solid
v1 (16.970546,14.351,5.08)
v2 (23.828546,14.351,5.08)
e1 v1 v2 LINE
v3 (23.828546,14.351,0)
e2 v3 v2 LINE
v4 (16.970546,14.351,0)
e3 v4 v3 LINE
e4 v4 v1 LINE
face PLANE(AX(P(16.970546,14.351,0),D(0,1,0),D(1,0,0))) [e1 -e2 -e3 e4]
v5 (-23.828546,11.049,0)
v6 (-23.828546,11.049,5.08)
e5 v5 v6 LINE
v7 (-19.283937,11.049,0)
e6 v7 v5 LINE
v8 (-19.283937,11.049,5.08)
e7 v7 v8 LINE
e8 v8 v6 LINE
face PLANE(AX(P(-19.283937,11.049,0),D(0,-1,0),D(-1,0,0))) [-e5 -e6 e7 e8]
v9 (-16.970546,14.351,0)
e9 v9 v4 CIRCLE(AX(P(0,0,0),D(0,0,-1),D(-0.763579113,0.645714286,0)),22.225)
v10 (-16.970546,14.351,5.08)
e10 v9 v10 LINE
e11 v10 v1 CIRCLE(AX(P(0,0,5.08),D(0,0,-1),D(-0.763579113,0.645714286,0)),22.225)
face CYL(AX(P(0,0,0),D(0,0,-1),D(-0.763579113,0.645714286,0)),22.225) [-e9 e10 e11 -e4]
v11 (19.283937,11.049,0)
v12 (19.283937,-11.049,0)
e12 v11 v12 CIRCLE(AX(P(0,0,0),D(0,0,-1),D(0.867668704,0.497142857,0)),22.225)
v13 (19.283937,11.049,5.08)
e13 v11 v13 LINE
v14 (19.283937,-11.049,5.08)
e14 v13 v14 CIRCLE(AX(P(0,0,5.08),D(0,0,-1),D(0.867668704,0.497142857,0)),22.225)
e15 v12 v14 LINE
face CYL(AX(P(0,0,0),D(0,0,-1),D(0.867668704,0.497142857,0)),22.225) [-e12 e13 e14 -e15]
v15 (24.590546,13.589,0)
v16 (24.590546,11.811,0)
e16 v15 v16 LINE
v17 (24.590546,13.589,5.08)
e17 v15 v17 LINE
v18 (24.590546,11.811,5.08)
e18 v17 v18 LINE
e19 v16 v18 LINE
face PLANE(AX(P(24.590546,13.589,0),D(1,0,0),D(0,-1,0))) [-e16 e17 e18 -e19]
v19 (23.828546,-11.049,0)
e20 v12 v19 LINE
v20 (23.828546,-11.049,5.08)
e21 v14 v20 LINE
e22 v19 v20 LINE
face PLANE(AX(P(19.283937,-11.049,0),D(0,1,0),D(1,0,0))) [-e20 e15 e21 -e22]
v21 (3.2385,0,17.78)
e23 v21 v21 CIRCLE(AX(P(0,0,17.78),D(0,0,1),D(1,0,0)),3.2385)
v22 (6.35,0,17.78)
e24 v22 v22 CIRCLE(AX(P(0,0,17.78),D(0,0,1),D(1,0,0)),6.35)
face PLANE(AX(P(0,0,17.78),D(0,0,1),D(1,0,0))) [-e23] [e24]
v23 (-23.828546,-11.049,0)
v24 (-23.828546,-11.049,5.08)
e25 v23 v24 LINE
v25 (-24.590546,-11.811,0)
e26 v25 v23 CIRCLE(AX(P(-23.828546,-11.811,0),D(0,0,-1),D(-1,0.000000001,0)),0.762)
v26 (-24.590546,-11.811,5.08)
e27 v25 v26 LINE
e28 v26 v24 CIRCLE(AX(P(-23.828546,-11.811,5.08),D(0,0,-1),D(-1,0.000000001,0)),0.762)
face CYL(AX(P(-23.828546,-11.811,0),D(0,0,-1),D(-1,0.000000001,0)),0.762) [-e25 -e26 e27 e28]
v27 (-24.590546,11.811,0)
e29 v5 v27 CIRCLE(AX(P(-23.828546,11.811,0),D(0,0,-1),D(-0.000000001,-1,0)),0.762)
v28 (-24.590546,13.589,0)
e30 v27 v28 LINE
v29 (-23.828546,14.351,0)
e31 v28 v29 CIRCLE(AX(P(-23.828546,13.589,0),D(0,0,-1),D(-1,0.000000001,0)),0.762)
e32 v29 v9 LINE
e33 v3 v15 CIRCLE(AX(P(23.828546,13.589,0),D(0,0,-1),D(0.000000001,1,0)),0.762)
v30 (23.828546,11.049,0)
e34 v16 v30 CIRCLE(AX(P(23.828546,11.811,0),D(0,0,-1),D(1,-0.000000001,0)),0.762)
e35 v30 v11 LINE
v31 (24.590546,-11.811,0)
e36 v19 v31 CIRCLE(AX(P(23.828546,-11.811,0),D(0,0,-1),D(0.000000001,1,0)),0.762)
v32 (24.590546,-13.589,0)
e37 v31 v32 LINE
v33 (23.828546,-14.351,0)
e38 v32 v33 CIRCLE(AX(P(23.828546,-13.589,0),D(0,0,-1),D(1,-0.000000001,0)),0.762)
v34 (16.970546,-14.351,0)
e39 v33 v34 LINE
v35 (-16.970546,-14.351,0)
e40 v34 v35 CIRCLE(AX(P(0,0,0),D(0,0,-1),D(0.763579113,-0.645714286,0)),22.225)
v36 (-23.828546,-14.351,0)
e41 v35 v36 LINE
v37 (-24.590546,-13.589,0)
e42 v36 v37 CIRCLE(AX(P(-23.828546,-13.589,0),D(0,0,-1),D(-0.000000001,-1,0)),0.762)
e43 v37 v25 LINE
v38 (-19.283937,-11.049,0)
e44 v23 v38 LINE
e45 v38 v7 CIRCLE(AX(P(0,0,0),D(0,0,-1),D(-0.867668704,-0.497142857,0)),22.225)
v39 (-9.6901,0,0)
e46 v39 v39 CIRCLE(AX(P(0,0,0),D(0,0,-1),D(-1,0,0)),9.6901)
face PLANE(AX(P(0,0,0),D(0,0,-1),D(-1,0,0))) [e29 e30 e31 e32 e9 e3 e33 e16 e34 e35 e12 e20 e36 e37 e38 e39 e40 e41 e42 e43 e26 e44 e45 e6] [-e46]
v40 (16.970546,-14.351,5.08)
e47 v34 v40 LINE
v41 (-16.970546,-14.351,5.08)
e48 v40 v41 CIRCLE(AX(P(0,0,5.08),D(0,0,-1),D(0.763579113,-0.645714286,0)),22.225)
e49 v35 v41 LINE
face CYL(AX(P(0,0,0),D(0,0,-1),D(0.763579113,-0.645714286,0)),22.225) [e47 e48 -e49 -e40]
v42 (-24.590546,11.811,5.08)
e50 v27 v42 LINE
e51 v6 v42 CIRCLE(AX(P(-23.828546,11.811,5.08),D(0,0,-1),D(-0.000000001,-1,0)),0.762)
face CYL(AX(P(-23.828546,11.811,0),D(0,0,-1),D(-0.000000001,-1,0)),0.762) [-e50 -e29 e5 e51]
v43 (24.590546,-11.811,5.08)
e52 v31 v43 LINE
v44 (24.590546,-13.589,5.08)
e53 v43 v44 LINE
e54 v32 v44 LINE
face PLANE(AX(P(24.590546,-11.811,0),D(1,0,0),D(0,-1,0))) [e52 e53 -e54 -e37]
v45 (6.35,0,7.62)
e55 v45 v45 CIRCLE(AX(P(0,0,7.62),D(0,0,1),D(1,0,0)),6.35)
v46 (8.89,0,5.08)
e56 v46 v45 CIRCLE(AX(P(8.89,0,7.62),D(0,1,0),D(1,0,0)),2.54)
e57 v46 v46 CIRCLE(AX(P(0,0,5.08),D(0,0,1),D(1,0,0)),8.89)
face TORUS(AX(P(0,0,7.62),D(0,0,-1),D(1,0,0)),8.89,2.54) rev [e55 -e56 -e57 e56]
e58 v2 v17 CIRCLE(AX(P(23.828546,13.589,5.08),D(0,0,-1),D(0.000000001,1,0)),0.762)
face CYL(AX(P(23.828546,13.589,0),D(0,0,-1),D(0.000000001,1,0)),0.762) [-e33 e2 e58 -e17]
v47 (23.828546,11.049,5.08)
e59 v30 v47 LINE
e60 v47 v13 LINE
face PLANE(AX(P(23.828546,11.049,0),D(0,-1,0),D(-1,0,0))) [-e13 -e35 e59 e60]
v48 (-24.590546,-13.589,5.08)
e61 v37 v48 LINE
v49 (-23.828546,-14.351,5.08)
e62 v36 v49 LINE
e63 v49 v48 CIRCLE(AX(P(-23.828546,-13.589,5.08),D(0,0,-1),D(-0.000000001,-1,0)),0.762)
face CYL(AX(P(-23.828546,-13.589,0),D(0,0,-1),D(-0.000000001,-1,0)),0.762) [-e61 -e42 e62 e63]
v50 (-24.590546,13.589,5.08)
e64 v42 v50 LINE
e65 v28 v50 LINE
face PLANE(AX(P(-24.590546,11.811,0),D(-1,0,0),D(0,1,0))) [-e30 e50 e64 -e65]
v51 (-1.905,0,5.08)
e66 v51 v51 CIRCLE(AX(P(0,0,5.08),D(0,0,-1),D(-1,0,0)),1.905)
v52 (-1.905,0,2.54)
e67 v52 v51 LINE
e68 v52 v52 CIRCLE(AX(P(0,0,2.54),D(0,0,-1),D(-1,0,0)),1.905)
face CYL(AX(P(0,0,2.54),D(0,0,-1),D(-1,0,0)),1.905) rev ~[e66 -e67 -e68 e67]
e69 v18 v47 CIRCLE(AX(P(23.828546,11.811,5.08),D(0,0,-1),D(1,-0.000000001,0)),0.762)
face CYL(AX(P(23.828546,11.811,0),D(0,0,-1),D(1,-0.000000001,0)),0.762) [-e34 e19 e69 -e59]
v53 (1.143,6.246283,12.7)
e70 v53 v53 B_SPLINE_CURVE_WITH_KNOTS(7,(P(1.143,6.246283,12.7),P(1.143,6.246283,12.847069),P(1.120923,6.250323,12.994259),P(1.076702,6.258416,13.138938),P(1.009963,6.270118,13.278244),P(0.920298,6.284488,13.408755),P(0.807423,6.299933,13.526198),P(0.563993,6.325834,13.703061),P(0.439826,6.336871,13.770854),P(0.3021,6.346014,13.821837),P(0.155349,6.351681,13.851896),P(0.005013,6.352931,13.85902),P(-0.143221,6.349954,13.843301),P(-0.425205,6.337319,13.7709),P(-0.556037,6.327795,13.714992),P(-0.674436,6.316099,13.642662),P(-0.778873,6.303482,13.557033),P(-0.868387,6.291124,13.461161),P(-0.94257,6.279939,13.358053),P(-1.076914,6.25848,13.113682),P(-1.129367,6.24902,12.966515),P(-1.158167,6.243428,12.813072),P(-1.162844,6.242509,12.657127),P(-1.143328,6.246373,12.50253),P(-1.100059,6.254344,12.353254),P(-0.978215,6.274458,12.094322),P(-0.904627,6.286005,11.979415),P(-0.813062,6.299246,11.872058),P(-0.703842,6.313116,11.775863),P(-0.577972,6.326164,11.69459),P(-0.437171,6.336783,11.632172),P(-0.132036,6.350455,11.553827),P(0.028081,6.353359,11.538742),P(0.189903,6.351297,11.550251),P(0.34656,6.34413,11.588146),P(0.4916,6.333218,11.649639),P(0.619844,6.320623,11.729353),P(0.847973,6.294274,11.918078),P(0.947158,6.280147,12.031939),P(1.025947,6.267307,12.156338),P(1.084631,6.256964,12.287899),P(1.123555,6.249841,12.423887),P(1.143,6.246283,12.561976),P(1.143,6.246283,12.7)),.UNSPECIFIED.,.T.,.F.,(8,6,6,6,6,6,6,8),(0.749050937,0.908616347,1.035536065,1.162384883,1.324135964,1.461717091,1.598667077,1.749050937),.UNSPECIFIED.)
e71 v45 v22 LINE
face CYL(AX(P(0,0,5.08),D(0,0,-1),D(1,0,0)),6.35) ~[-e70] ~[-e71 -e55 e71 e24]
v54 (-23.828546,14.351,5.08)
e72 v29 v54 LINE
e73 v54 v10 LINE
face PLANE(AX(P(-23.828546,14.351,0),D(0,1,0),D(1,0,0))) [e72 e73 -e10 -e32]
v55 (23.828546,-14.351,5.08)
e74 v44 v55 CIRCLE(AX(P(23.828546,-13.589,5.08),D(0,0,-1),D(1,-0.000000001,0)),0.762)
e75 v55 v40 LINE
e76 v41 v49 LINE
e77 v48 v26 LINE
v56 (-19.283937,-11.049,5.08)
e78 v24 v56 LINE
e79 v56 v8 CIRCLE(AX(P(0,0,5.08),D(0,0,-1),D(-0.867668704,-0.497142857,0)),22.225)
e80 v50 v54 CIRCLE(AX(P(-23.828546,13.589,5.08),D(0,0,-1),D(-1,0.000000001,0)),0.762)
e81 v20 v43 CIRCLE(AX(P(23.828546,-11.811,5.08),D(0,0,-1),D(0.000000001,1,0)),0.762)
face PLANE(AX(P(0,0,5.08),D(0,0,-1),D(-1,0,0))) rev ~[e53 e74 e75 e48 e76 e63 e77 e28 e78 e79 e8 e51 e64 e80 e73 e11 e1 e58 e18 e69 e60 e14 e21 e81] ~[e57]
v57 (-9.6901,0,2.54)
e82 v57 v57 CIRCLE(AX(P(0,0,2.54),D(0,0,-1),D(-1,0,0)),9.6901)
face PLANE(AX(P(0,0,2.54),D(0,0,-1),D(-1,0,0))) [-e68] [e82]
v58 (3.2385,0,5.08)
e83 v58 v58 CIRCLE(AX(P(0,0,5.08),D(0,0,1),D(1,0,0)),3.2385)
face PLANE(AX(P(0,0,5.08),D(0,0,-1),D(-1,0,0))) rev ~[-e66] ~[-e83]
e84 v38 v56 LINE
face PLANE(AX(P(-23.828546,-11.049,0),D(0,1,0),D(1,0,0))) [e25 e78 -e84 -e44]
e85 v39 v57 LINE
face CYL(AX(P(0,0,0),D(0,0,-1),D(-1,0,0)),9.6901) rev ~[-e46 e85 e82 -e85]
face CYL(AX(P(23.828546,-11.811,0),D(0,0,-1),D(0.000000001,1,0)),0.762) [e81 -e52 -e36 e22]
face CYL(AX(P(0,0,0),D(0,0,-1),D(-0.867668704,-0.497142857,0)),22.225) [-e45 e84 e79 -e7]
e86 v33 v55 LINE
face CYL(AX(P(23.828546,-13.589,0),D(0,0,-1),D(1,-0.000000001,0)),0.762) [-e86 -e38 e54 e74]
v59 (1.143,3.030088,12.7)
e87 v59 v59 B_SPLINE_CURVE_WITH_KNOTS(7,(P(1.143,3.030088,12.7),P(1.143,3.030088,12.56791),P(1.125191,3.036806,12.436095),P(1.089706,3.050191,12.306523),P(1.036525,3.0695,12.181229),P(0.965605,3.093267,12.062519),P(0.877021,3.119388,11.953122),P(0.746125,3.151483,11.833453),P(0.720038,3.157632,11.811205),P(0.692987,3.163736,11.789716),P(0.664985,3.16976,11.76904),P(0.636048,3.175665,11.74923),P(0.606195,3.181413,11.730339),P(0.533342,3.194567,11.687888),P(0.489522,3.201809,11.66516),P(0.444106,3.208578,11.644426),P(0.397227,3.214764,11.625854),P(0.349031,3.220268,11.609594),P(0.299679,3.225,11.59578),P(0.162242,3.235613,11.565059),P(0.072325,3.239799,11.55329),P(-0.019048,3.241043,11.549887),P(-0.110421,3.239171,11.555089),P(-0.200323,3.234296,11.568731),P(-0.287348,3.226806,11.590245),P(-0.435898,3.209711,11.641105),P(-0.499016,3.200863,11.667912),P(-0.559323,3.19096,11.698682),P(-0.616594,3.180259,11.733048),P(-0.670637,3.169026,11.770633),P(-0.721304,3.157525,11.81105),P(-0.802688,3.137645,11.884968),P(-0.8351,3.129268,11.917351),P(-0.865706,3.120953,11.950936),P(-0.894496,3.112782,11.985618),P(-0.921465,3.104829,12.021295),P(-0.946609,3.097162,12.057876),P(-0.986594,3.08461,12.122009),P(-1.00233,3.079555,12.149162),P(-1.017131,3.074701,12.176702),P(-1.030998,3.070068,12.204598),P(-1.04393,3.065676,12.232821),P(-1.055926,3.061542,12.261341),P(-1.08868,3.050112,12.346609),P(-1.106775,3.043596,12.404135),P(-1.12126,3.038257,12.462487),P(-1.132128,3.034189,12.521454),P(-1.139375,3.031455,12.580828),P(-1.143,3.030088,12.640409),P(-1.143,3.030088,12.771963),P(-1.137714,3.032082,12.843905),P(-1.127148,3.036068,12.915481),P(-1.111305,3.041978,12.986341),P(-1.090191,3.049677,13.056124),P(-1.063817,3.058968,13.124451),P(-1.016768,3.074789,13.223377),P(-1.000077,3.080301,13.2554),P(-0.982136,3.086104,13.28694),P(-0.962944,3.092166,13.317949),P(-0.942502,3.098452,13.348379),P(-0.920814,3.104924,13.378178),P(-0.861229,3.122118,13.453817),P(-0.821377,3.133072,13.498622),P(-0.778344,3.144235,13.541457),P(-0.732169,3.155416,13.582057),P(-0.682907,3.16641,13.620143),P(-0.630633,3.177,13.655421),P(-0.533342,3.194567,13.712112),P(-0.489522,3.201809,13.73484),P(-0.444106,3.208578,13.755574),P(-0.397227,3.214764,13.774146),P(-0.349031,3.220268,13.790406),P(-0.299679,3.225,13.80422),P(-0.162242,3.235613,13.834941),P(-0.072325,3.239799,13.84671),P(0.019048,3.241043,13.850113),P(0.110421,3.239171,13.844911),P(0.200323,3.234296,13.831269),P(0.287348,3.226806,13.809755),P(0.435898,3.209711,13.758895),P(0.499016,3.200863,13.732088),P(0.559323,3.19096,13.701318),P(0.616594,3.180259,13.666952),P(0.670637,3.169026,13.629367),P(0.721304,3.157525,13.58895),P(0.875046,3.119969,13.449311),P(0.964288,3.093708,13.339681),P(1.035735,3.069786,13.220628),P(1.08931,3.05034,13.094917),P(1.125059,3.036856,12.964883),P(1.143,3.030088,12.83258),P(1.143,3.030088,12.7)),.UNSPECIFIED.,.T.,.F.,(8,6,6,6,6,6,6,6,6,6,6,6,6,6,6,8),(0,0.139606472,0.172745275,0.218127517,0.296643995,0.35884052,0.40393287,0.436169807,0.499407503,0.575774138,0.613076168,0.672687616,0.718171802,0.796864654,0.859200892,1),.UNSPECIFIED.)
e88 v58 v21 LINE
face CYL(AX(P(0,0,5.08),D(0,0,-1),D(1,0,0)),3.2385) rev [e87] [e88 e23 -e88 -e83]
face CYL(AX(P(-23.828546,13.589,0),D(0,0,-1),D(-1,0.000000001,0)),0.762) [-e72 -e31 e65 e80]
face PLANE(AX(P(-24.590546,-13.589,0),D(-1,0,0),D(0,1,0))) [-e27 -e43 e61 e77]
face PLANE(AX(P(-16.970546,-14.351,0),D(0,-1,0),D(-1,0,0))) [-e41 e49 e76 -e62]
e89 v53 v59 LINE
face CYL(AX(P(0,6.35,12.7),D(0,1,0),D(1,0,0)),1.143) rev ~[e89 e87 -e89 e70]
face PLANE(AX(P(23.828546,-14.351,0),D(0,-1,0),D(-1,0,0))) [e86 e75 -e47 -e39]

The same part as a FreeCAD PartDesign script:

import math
import FreeCAD as App
import Part
import Sketcher
from FreeCAD import Vector
Q = App.Units.Quantity


def edges_at(feature, points):
    """Names of the edges that pass closest to the given points."""
    edges = feature.Shape.Edges
    near = lambda p: min(range(len(edges)), key=lambda i: edges[i].distToShape(Part.Vertex(*p))[0])
    return sorted({f"Edge{near(p) + 1}" for p in points})

doc = App.newDocument("Part")
params = doc.addObject("Spreadsheet::Sheet", "Params")
for row, (alias, value) in enumerate([
    ("sketch1_radius", "0.03 in"),
    ("sketch1_radius2", "0.875 in"),
    ("sketch1_width", "0.27 in"),
    ("sketch1_height", "0.07 in"),
    ("pad1_length", "0.2 in"),
    ("sketch2_diameter", "0.763 in"),
    ("pocket1_length", "0.1 in"),
    ("sketch3_diameter", "0.5 in"),
    ("sketch3_diameter2", "0.255 in"),
    ("pad2_length", "0.5 in"),
    ("fillet_radius", "0.1 in"),
    ("sketch4_diameter", "0.09 in"),
    ("pocket2_length", "0.3 in"),
    ("sketch5_diameter", "0.15 in"),
], start=1):
    params.set(f"A{row}", alias)
    params.set(f"B{row}", "=" + value)
    params.setAlias(f"B{row}", alias)

body = doc.addObject("PartDesign::Body", "Body")

sketch1 = body.newObject("Sketcher::SketchObject", "Sketch")
sketch1.AttachmentSupport = (doc.getObject("XY_Plane"), [""])
sketch1.MapMode = "FlatFace"
sketch1.addGeometry([
    Part.LineSegment(Vector(-17, 14.4, 0), Vector(-23.8, 14.4, 0)),
    Part.ArcOfCircle(Part.Circle(Vector(-23.8, 13.6, 0), Vector(0, 0, 1), 0.8), math.radians(90), math.radians(180)),
    Part.LineSegment(Vector(-24.6, 13.6, 0), Vector(-24.6, 11.8, 0)),
    Part.ArcOfCircle(Part.Circle(Vector(-23.8, 11.8, 0), Vector(0, 0, 1), 0.8), math.radians(-180), math.radians(-90)),
    Part.LineSegment(Vector(-23.8, 11, 0), Vector(-19.3, 11, 0)),
    Part.ArcOfCircle(Part.Circle(Vector(0, 0, 0), Vector(0, 0, 1), 22.2), math.radians(150), math.radians(210)),
    Part.LineSegment(Vector(-19.3, -11, 0), Vector(-23.8, -11, 0)),
    Part.ArcOfCircle(Part.Circle(Vector(-23.8, -11.8, 0), Vector(0, 0, 1), 0.8), math.radians(90), math.radians(180)),
    Part.LineSegment(Vector(-24.6, -11.8, 0), Vector(-24.6, -13.6, 0)),
    Part.ArcOfCircle(Part.Circle(Vector(-23.8, -13.6, 0), Vector(0, 0, 1), 0.8), math.radians(-180), math.radians(-90)),
    Part.LineSegment(Vector(-23.8, -14.4, 0), Vector(-17, -14.4, 0)),
    Part.ArcOfCircle(Part.Circle(Vector(0, 0, 0), Vector(0, 0, 1), 22.2), math.radians(-140), math.radians(-40)),
    Part.LineSegment(Vector(17, -14.4, 0), Vector(23.8, -14.4, 0)),
    Part.ArcOfCircle(Part.Circle(Vector(23.8, -13.6, 0), Vector(0, 0, 1), 0.8), math.radians(-90), math.radians(0)),
    Part.LineSegment(Vector(24.6, -13.6, 0), Vector(24.6, -11.8, 0)),
    Part.ArcOfCircle(Part.Circle(Vector(23.8, -11.8, 0), Vector(0, 0, 1), 0.8), math.radians(0), math.radians(90)),
    Part.LineSegment(Vector(23.8, -11, 0), Vector(19.3, -11, 0)),
    Part.ArcOfCircle(Part.Circle(Vector(0, 0, 0), Vector(0, 0, 1), 22.2), math.radians(-30), math.radians(30)),
    Part.LineSegment(Vector(19.3, 11, 0), Vector(23.8, 11, 0)),
    Part.ArcOfCircle(Part.Circle(Vector(23.8, 11.8, 0), Vector(0, 0, 1), 0.8), math.radians(-90), math.radians(0)),
    Part.LineSegment(Vector(24.6, 11.8, 0), Vector(24.6, 13.6, 0)),
    Part.ArcOfCircle(Part.Circle(Vector(23.8, 13.6, 0), Vector(0, 0, 1), 0.8), math.radians(0), math.radians(90)),
    Part.LineSegment(Vector(23.8, 14.4, 0), Vector(17, 14.4, 0)),
    Part.ArcOfCircle(Part.Circle(Vector(0, 0, 0), Vector(0, 0, 1), 22.2), math.radians(40), math.radians(140)),
], False)
sketch1.addConstraint([
    Sketcher.Constraint("Tangent", 0, 2, 1, 1),
    Sketcher.Constraint("Tangent", 1, 2, 2, 1),
    Sketcher.Constraint("Tangent", 2, 2, 3, 1),
    Sketcher.Constraint("Tangent", 3, 2, 4, 1),
    Sketcher.Constraint("Coincident", 4, 2, 5, 1),
    Sketcher.Constraint("Coincident", 5, 2, 6, 1),
    Sketcher.Constraint("Tangent", 6, 2, 7, 1),
    Sketcher.Constraint("Tangent", 7, 2, 8, 1),
    Sketcher.Constraint("Tangent", 8, 2, 9, 1),
    Sketcher.Constraint("Tangent", 9, 2, 10, 1),
    Sketcher.Constraint("Coincident", 10, 2, 11, 1),
    Sketcher.Constraint("Coincident", 11, 2, 12, 1),
    Sketcher.Constraint("Tangent", 12, 2, 13, 1),
    Sketcher.Constraint("Tangent", 13, 2, 14, 1),
    Sketcher.Constraint("Tangent", 14, 2, 15, 1),
    Sketcher.Constraint("Tangent", 15, 2, 16, 1),
    Sketcher.Constraint("Coincident", 16, 2, 17, 1),
    Sketcher.Constraint("Coincident", 17, 2, 18, 1),
    Sketcher.Constraint("Tangent", 18, 2, 19, 1),
    Sketcher.Constraint("Tangent", 19, 2, 20, 1),
    Sketcher.Constraint("Tangent", 20, 2, 21, 1),
    Sketcher.Constraint("Tangent", 21, 2, 22, 1),
    Sketcher.Constraint("Coincident", 22, 2, 23, 1),
    Sketcher.Constraint("Coincident", 23, 2, 0, 1),
    Sketcher.Constraint("Horizontal", 0),
    Sketcher.Constraint("Vertical", 2),
    Sketcher.Constraint("Horizontal", 4),
    Sketcher.Constraint("Horizontal", 6),
    Sketcher.Constraint("Vertical", 8),
    Sketcher.Constraint("Horizontal", 10),
    Sketcher.Constraint("Horizontal", 12),
    Sketcher.Constraint("Vertical", 14),
    Sketcher.Constraint("Horizontal", 16),
    Sketcher.Constraint("Horizontal", 18),
    Sketcher.Constraint("Vertical", 20),
    Sketcher.Constraint("Horizontal", 22),
    Sketcher.Constraint("Coincident", 5, 3, -1, 1),
    Sketcher.Constraint("Coincident", 11, 3, -1, 1),
    Sketcher.Constraint("Coincident", 17, 3, -1, 1),
    Sketcher.Constraint("Coincident", 23, 3, -1, 1),
    Sketcher.Constraint("Equal", 1, 3),
    Sketcher.Constraint("Equal", 3, 7),
    Sketcher.Constraint("Equal", 7, 9),
    Sketcher.Constraint("Equal", 5, 11),
    Sketcher.Constraint("Equal", 9, 13),
    Sketcher.Constraint("Equal", 13, 15),
    Sketcher.Constraint("Equal", 11, 17),
    Sketcher.Constraint("Equal", 15, 19),
    Sketcher.Constraint("Equal", 19, 21),
    Sketcher.Constraint("Equal", 17, 23),
    Sketcher.Constraint("Symmetric", 1, 3, 13, 3, -1, 1),
    Sketcher.Constraint("Symmetric", 7, 3, 19, 3, -1, 1),
    Sketcher.Constraint("Symmetric", 9, 3, 13, 3, -2),
    Sketcher.Constraint("Horizontal", 7, 3, 15, 3),
    Sketcher.Constraint("Horizontal", 3, 3, 19, 3),
    Sketcher.Constraint("Horizontal", 1, 3, 21, 3),
    Sketcher.Constraint("Radius", 1, Q("0.03 in")),
    Sketcher.Constraint("Radius", 5, Q("0.875 in")),
    Sketcher.Constraint("DistanceY", 7, 3, 1, 3, Q("1 in")),
    Sketcher.Constraint("DistanceX", 0, 2, 0, 1, Q("0.27 in")),
    Sketcher.Constraint("DistanceY", 2, 2, 2, 1, Q("0.07 in")),
])
sketch1.setExpression("Constraints[56]", "Params.sketch1_radius")
sketch1.setExpression("Constraints[57]", "Params.sketch1_radius2")
sketch1.setExpression("Constraints[59]", "Params.sketch1_width")
sketch1.setExpression("Constraints[60]", "Params.sketch1_height")
pad1 = body.newObject("PartDesign::Pad", "Pad")
pad1.Profile = sketch1
pad1.setExpression("Length", "Params.pad1_length")

sketch2 = body.newObject("Sketcher::SketchObject", "Sketch001")
sketch2.AttachmentSupport = (doc.getObject("XY_Plane"), [""])
sketch2.MapMode = "FlatFace"
sketch2.addGeometry(Part.Circle(Vector(0, 0, 0), Vector(0, 0, 1), 10), False)
sketch2.addConstraint([
    Sketcher.Constraint("Coincident", 0, 3, -1, 1),
    Sketcher.Constraint("Diameter", 0, Q("0.763 in")),
])
sketch2.setExpression("Constraints[1]", "Params.sketch2_diameter")
pocket1 = body.newObject("PartDesign::Pocket", "Pocket")
pocket1.Profile = sketch2
pocket1.setExpression("Length", "Params.pocket1_length")
pocket1.Reversed = True

sketch3 = body.newObject("Sketcher::SketchObject", "Sketch002")
sketch3.AttachmentSupport = (doc.getObject("XY_Plane"), [""])
sketch3.MapMode = "FlatFace"
sketch3.AttachmentOffset = App.Placement(Vector(0, 0, 0.2 * 25.4), App.Rotation())
sketch3.addGeometry([
    Part.Circle(Vector(0, 0, 0), Vector(0, 0, 1), 6.3),
    Part.Circle(Vector(0, 0, 0), Vector(0, 0, 1), 3.2),
], False)
sketch3.addConstraint([
    Sketcher.Constraint("Coincident", 0, 3, -1, 1),
    Sketcher.Constraint("Coincident", 1, 3, -1, 1),
    Sketcher.Constraint("Diameter", 0, Q("0.5 in")),
    Sketcher.Constraint("Diameter", 1, Q("0.255 in")),
])
sketch3.setExpression("Constraints[2]", "Params.sketch3_diameter")
sketch3.setExpression("Constraints[3]", "Params.sketch3_diameter2")
pad2 = body.newObject("PartDesign::Pad", "Pad001")
pad2.Profile = sketch3
pad2.setExpression("Length", "Params.pad2_length")
doc.recompute()

fillet = body.newObject("PartDesign::Fillet", "Fillet")
fillet.Base = (pad2, edges_at(pad2, [(-6.35, 0, 5.08)]))
fillet.setExpression("Radius", "Params.fillet_radius")

sketch4 = body.newObject("Sketcher::SketchObject", "Sketch003")
sketch4.AttachmentSupport = (doc.getObject("XZ_Plane"), [""])
sketch4.MapMode = "FlatFace"
sketch4.AttachmentOffset = App.Placement(Vector(0, 0, -0.25 * 25.4), App.Rotation())
sketch4.addGeometry(Part.Circle(Vector(0, 12.7, 0), Vector(0, 0, 1), 1.1), False)
sketch4.addConstraint([
    Sketcher.Constraint("PointOnObject", 0, 3, -2),
    Sketcher.Constraint("Diameter", 0, Q("0.09 in")),
    Sketcher.Constraint("DistanceY", -1, 1, 0, 3, Q("0.5 in")),
])
sketch4.setExpression("Constraints[1]", "Params.sketch4_diameter")
pocket2 = body.newObject("PartDesign::Pocket", "Pocket001")
pocket2.Profile = sketch4
pocket2.setExpression("Length", "Params.pocket2_length")
pocket2.Reversed = True

sketch5 = body.newObject("Sketcher::SketchObject", "Sketch004")
sketch5.AttachmentSupport = (doc.getObject("XY_Plane"), [""])
sketch5.MapMode = "FlatFace"
sketch5.AttachmentOffset = App.Placement(Vector(0, 0, 0.1 * 25.4), App.Rotation())
sketch5.addGeometry(Part.Circle(Vector(0, 0, 0), Vector(0, 0, 1), 1.9), False)
sketch5.addConstraint([
    Sketcher.Constraint("Coincident", 0, 3, -1, 1),
    Sketcher.Constraint("Diameter", 0, Q("0.15 in")),
])
sketch5.setExpression("Constraints[1]", "Params.sketch5_diameter")
pocket3 = body.newObject("PartDesign::Pocket", "Pocket002")
pocket3.Profile = sketch5
pocket3.Type = "ThroughAll"
pocket3.Reversed = True

doc.recompute()
